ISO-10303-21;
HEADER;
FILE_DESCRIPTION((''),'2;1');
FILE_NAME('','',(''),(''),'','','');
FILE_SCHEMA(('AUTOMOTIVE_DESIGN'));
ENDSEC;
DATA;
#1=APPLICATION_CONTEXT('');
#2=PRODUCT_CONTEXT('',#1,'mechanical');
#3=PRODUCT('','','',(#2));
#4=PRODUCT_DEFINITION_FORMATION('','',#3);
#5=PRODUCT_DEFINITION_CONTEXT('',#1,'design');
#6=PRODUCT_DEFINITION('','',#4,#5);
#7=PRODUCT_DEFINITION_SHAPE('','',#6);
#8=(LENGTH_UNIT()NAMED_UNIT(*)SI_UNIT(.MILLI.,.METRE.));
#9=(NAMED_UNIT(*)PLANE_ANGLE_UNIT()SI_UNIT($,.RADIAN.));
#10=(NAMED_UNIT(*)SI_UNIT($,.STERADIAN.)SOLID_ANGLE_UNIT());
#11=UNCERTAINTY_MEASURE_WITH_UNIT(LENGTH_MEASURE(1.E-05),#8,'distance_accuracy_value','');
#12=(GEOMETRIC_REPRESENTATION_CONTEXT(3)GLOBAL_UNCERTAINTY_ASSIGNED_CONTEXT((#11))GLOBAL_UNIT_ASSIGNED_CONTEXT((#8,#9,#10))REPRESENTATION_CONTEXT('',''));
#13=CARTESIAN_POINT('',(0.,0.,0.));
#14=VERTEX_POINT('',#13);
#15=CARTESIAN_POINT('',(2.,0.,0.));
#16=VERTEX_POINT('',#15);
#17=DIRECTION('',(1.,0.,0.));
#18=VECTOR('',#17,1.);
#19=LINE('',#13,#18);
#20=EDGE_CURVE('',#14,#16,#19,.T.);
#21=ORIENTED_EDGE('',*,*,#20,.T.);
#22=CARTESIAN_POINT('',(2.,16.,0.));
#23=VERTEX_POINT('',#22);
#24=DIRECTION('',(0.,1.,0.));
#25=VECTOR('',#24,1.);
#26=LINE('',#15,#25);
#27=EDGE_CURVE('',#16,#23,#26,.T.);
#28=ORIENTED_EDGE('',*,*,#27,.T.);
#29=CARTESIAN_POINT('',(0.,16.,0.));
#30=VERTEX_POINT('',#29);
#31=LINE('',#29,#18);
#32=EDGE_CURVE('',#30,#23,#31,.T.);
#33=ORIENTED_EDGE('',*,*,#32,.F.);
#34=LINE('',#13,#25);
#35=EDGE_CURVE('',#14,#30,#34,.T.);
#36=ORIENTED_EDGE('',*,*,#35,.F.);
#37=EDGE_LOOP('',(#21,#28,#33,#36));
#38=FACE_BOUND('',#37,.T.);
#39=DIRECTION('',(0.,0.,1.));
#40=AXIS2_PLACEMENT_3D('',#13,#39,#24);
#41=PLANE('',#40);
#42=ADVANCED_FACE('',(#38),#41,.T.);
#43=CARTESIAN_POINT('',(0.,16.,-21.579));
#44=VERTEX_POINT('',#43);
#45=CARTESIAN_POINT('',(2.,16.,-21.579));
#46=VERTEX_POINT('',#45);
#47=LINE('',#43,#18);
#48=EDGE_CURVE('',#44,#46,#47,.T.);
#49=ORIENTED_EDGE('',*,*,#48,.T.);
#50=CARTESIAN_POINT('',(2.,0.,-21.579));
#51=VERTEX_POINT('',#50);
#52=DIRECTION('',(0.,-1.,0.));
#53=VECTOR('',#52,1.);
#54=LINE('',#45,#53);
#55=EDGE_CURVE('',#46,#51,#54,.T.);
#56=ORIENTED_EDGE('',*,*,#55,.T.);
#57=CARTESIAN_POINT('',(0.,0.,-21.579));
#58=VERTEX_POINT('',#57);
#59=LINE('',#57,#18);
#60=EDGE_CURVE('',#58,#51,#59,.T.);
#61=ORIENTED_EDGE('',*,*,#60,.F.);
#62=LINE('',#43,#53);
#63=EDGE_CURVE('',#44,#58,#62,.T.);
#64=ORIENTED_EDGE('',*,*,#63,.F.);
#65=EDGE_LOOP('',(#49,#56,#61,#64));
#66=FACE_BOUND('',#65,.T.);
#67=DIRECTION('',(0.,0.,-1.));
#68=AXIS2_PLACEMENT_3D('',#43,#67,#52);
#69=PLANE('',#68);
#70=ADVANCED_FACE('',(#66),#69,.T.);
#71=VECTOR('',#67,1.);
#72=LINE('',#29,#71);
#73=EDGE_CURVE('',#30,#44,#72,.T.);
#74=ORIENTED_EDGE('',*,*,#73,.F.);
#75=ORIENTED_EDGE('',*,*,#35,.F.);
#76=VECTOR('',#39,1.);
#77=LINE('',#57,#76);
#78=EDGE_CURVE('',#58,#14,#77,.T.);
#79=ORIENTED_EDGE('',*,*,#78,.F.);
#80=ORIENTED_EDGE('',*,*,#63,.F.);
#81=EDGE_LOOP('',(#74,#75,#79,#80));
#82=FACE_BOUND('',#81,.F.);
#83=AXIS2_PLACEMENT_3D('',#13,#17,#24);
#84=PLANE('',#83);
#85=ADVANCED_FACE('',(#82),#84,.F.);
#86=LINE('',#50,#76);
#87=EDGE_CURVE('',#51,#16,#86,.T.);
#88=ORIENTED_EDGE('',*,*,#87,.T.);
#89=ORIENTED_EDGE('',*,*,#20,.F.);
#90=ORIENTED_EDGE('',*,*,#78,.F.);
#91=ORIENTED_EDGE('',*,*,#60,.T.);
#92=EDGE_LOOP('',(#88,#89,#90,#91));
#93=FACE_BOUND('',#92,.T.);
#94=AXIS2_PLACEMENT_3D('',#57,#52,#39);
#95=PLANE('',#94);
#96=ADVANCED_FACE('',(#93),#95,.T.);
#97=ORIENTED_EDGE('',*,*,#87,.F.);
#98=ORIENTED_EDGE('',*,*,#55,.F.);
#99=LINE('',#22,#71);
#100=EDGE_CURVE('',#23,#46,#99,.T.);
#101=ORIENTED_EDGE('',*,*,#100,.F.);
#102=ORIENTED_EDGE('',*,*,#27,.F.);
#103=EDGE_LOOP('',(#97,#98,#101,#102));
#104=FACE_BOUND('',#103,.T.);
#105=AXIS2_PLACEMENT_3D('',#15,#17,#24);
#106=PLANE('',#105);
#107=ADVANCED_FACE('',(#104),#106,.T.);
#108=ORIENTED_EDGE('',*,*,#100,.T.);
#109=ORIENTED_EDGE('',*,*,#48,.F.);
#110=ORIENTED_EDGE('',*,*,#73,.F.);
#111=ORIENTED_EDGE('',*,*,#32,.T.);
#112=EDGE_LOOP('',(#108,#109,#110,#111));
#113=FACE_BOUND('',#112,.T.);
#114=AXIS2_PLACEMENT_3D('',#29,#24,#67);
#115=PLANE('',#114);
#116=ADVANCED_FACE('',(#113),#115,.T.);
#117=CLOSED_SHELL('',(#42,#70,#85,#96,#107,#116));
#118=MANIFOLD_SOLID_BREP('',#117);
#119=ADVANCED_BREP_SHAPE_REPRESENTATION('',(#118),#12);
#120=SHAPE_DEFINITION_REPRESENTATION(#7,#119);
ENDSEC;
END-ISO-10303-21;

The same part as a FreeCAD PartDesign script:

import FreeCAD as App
import Part
import Sketcher
Q = App.Units.Quantity

doc = App.newDocument("Part")
body = doc.addObject("PartDesign::Body", "Body")

sketch1 = body.newObject("Sketcher::SketchObject", "Sketch")
sketch1.AttachmentSupport = (doc.getObject("YZ_Plane"), [""])
sketch1.MapMode = "FlatFace"
sketch1.addGeometry([
    Part.LineSegment(App.Vector(16, 0, 0), App.Vector(0, 0, 0)),
    Part.LineSegment(App.Vector(0, 0, 0), App.Vector(0, -22, 0)),
    Part.LineSegment(App.Vector(0, -22, 0), App.Vector(16, -22, 0)),
    Part.LineSegment(App.Vector(16, -22, 0), App.Vector(16, 0, 0)),
], False)
sketch1.addConstraint([
    Sketcher.Constraint("Coincident", 0, 2, 1, 1),
    Sketcher.Constraint("Coincident", 1, 2, 2, 1),
    Sketcher.Constraint("Coincident", 2, 2, 3, 1),
    Sketcher.Constraint("Coincident", 3, 2, 0, 1),
    Sketcher.Constraint("Horizontal", 0),
    Sketcher.Constraint("Vertical", 1),
    Sketcher.Constraint("Horizontal", 2),
    Sketcher.Constraint("Vertical", 3),
    Sketcher.Constraint("Coincident", 0, 2, -1, 1),
    Sketcher.Constraint("DistanceX", 0, 2, 0, 1, Q("16 mm")),
    Sketcher.Constraint("DistanceY", 1, 2, 1, 1, Q("21.579 mm")),
])
pad1 = body.newObject("PartDesign::Pad", "Pad")
pad1.Profile = sketch1
pad1.Length = 2

doc.recompute()
